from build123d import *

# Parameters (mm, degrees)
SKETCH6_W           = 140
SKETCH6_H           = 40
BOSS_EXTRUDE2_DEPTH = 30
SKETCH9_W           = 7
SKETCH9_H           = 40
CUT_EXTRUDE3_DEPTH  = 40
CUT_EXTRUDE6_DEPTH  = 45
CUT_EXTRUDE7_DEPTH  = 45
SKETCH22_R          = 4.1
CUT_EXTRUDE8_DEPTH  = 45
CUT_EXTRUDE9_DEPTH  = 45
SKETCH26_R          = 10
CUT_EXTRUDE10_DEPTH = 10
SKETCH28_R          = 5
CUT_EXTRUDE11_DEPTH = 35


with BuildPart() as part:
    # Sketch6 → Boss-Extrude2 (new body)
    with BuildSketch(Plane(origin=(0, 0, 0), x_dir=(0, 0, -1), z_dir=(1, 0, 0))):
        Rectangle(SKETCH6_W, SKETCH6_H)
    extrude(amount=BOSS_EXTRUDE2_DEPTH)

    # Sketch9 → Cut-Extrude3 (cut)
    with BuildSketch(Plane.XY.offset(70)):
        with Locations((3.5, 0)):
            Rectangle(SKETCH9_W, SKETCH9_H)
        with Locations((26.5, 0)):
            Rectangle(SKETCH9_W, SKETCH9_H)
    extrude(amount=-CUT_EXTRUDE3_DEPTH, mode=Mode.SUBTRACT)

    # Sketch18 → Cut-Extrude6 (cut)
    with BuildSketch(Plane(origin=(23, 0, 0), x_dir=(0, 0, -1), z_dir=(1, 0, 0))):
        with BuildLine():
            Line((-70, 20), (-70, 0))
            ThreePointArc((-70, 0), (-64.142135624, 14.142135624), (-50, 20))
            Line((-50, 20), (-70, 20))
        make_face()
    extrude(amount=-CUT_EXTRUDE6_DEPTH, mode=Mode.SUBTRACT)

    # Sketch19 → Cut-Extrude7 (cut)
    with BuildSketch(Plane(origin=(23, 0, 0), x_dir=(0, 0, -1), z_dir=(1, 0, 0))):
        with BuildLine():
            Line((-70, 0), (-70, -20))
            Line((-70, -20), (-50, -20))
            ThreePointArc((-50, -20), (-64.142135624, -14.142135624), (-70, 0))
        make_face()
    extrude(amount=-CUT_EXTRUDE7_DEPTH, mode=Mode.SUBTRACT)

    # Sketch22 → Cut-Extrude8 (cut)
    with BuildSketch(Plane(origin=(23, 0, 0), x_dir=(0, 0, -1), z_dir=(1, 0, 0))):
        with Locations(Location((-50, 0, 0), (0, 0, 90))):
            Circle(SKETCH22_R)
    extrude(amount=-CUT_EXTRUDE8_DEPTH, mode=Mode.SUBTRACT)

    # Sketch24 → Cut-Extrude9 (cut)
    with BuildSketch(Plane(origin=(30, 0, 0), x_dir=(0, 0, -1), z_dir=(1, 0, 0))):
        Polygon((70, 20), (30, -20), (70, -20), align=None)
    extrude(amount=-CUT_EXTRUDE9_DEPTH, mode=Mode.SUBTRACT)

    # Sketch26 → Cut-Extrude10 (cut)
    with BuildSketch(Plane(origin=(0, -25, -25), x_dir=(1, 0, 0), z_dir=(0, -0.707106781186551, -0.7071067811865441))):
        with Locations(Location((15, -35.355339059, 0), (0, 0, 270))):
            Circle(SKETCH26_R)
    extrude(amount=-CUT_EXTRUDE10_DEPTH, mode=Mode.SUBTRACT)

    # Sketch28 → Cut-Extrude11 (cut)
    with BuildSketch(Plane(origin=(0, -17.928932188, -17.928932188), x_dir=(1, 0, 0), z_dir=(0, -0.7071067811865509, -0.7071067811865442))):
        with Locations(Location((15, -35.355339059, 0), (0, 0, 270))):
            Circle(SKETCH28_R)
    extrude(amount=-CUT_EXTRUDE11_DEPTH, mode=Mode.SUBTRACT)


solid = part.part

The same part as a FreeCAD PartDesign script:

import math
import FreeCAD as App
import Part
import Sketcher
from FreeCAD import Vector


def add_polygon(sketch, points):
    """Adds a closed chain of lines whose ends are joined by coincident constraints."""
    first, n = sketch.GeometryCount, len(points)
    for a, b in zip(points, points[1:] + points[:1]):
        sketch.addGeometry(Part.LineSegment(App.Vector(*a, 0), App.Vector(*b, 0)), False)
    for i in range(n):
        sketch.addConstraint(Sketcher.Constraint("Coincident", first + i, 2, first + (i + 1) % n, 1))

doc = App.newDocument("Part")
body = doc.addObject("PartDesign::Body", "Body")

# Sketch on YZ plane
sketch1 = body.newObject("Sketcher::SketchObject", "Sketch")
sketch1.AttachmentSupport = (doc.getObject("YZ_Plane"), [""])
sketch1.MapMode = "FlatFace"
add_polygon(sketch1, [(20, 70), (-20, 70), (-20, -70), (20, -70)])  # lines 0-3
sketch1.addConstraint(Sketcher.Constraint("Horizontal", 0))
sketch1.addConstraint(Sketcher.Constraint("Vertical", 1))
sketch1.addConstraint(Sketcher.Constraint("Horizontal", 2))
sketch1.addConstraint(Sketcher.Constraint("Vertical", 3))
sketch1.addConstraint(Sketcher.Constraint("Symmetric", 0, 2, 2, 2, -1, 1))
sketch1.addConstraint(Sketcher.Constraint("DistanceX", 0, 2, 0, 1, 40.0))
sketch1.addConstraint(Sketcher.Constraint("DistanceY", 1, 2, 1, 1, 140.0))
pad1 = body.newObject("PartDesign::Pad", "Pad")
pad1.Profile = sketch1
pad1.Length = 30

# Sketch on XY plane
sketch2 = body.newObject("Sketcher::SketchObject", "Sketch001")
sketch2.AttachmentSupport = (doc.getObject("XY_Plane"), [""])
sketch2.MapMode = "FlatFace"
sketch2.AttachmentOffset = App.Placement(Vector(0, 0, 70), App.Rotation())
add_polygon(sketch2, [(0, 20), (0, -20), (7, -20), (7, 20)])  # lines 0-3
add_polygon(sketch2, [(23, 20), (23, -20), (30, -20), (30, 20)])  # lines 4-7
sketch2.addConstraint(Sketcher.Constraint("Vertical", 0))
sketch2.addConstraint(Sketcher.Constraint("Horizontal", 1))
sketch2.addConstraint(Sketcher.Constraint("Vertical", 2))
sketch2.addConstraint(Sketcher.Constraint("Horizontal", 3))
sketch2.addConstraint(Sketcher.Constraint("Vertical", 4))
sketch2.addConstraint(Sketcher.Constraint("Horizontal", 5))
sketch2.addConstraint(Sketcher.Constraint("Vertical", 6))
sketch2.addConstraint(Sketcher.Constraint("Horizontal", 7))
sketch2.addConstraint(Sketcher.Constraint("Symmetric", 0, 2, 3, 2, -1, 1))
sketch2.addConstraint(Sketcher.Constraint("Horizontal", 1, 2, 4, 2))
sketch2.addConstraint(Sketcher.Constraint("Horizontal", 3, 2, 6, 2))
sketch2.addConstraint(Sketcher.Constraint("Equal", 3, 5))
sketch2.addConstraint(Sketcher.Constraint("DistanceX", 1, 1, 1, 2, 7.0))
sketch2.addConstraint(Sketcher.Constraint("DistanceY", 0, 2, 0, 1, 40.0))
sketch2.addConstraint(Sketcher.Constraint("DistanceX", -1, 1, 4, 2, 23.0))
pocket1 = body.newObject("PartDesign::Pocket", "Pocket")
pocket1.Profile = sketch2
pocket1.Length = 40

# Sketch on YZ plane
sketch3 = body.newObject("Sketcher::SketchObject", "Sketch002")
sketch3.AttachmentSupport = (doc.getObject("YZ_Plane"), [""])
sketch3.MapMode = "FlatFace"
sketch3.AttachmentOffset = App.Placement(Vector(0, 0, 23), App.Rotation())
sketch3.addGeometry(Part.LineSegment(Vector(20, 70, 0), Vector(0, 70, 0)), False)
sketch3.addGeometry(Part.ArcOfCircle(Part.Circle(Vector(0, 50, 0), Vector(0, 0, 1), 20), math.radians(0), math.radians(90)), False)
sketch3.addGeometry(Part.LineSegment(Vector(20, 50, 0), Vector(20, 70, 0)), False)
sketch3.addConstraint(Sketcher.Constraint("Tangent", 0, 2, 1, 2))
sketch3.addConstraint(Sketcher.Constraint("Tangent", 1, 1, 2, 1))
sketch3.addConstraint(Sketcher.Constraint("Coincident", 2, 2, 0, 1))
sketch3.addConstraint(Sketcher.Constraint("Horizontal", 0))
sketch3.addConstraint(Sketcher.Constraint("Vertical", 2))
sketch3.addConstraint(Sketcher.Constraint("PointOnObject", 1, 3, -2))
sketch3.addConstraint(Sketcher.Constraint("Radius", 1, 20.0))
sketch3.addConstraint(Sketcher.Constraint("DistanceY", -1, 1, 1, 3, 50.0))
pocket2 = body.newObject("PartDesign::Pocket", "Pocket001")
pocket2.Profile = sketch3
pocket2.Length = 45

# Sketch on YZ plane
sketch4 = body.newObject("Sketcher::SketchObject", "Sketch003")
sketch4.AttachmentSupport = (doc.getObject("YZ_Plane"), [""])
sketch4.MapMode = "FlatFace"
sketch4.AttachmentOffset = App.Placement(Vector(0, 0, 23), App.Rotation())
sketch4.addGeometry(Part.LineSegment(Vector(0, 70, 0), Vector(-20, 70, 0)), False)
sketch4.addGeometry(Part.LineSegment(Vector(-20, 70, 0), Vector(-20, 50, 0)), False)
sketch4.addGeometry(Part.ArcOfCircle(Part.Circle(Vector(0, 50, 0), Vector(0, 0, 1), 20), math.radians(90), math.radians(180)), False)
sketch4.addConstraint(Sketcher.Constraint("Coincident", 0, 2, 1, 1))
sketch4.addConstraint(Sketcher.Constraint("Tangent", 1, 2, 2, 2))
sketch4.addConstraint(Sketcher.Constraint("Tangent", 2, 1, 0, 1))
sketch4.addConstraint(Sketcher.Constraint("Horizontal", 0))
sketch4.addConstraint(Sketcher.Constraint("Vertical", 1))
sketch4.addConstraint(Sketcher.Constraint("PointOnObject", 2, 3, -2))
sketch4.addConstraint(Sketcher.Constraint("Radius", 2, 20.0))
sketch4.addConstraint(Sketcher.Constraint("DistanceY", -1, 1, 2, 3, 50.0))
pocket3 = body.newObject("PartDesign::Pocket", "Pocket002")
pocket3.Profile = sketch4
pocket3.Length = 45

# Sketch on YZ plane
sketch5 = body.newObject("Sketcher::SketchObject", "Sketch004")
sketch5.AttachmentSupport = (doc.getObject("YZ_Plane"), [""])
sketch5.MapMode = "FlatFace"
sketch5.AttachmentOffset = App.Placement(Vector(0, 0, 23), App.Rotation())
sketch5.addGeometry(Part.Circle(Vector(0, 50, 0), Vector(0, 0, 1), 4.1), False)
sketch5.addConstraint(Sketcher.Constraint("PointOnObject", 0, 3, -2))
sketch5.addConstraint(Sketcher.Constraint("Diameter", 0, 8.2))
sketch5.addConstraint(Sketcher.Constraint("DistanceY", -1, 1, 0, 3, 50.0))
pocket4 = body.newObject("PartDesign::Pocket", "Pocket003")
pocket4.Profile = sketch5
pocket4.Length = 45

# Sketch on YZ plane
sketch6 = body.newObject("Sketcher::SketchObject", "Sketch005")
sketch6.AttachmentSupport = (doc.getObject("YZ_Plane"), [""])
sketch6.MapMode = "FlatFace"
sketch6.AttachmentOffset = App.Placement(Vector(0, 0, 30), App.Rotation())
add_polygon(sketch6, [(20, -70), (-20, -30), (-20, -70)])  # lines 0-2
sketch6.addConstraint(Sketcher.Constraint("Vertical", 1))
sketch6.addConstraint(Sketcher.Constraint("Horizontal", 2))
sketch6.addConstraint(Sketcher.Constraint("Equal", 2, 1))
sketch6.addConstraint(Sketcher.Constraint("DistanceX", 2, 1, 2, 2, 40.0))
sketch6.addConstraint(Sketcher.Constraint("DistanceX", 0, 2, -1, 1, 20.0))
sketch6.addConstraint(Sketcher.Constraint("DistanceY", 0, 2, -1, 1, 30.0))
pocket5 = body.newObject("PartDesign::Pocket", "Pocket004")
pocket5.Profile = sketch6
pocket5.Length = 45

# Sketch on an angled plane
sketch7 = body.newObject("Sketcher::SketchObject", "Sketch006")
sketch7.Placement = App.Placement(Vector(0, -25, -25), App.Rotation(Vector(1, 0, 0), Vector(0, -0.707106781, 0.707106781), Vector(0, -0.707106781, -0.707106781), "ZXY"))
sketch7.addGeometry(Part.Circle(Vector(15, -35, 0), Vector(0, 0, 1), 10), False)
sketch7.addConstraint(Sketcher.Constraint("Diameter", 0, 20.0))
sketch7.addConstraint(Sketcher.Constraint("DistanceX", -1, 1, 0, 3, 15.0))
sketch7.addConstraint(Sketcher.Constraint("DistanceY", 0, 3, -1, 1, 35.355339))
pocket6 = body.newObject("PartDesign::Pocket", "Pocket005")
pocket6.Profile = sketch7
pocket6.Length = 10

# Sketch on an angled plane
sketch8 = body.newObject("Sketcher::SketchObject", "Sketch007")
sketch8.Placement = App.Placement(Vector(0, -17.928932, -17.928932), App.Rotation(Vector(1, 0, 0), Vector(0, -0.707106781, 0.707106781), Vector(0, -0.707106781, -0.707106781), "ZXY"))
sketch8.addGeometry(Part.Circle(Vector(15, -35, 0), Vector(0, 0, 1), 5), False)
sketch8.addConstraint(Sketcher.Constraint("Diameter", 0, 10.0))
sketch8.addConstraint(Sketcher.Constraint("DistanceX", -1, 1, 0, 3, 15.0))
sketch8.addConstraint(Sketcher.Constraint("DistanceY", 0, 3, -1, 1, 35.355339))
pocket7 = body.newObject("PartDesign::Pocket", "Pocket006")
pocket7.Profile = sketch8
pocket7.Length = 35

doc.recompute()
